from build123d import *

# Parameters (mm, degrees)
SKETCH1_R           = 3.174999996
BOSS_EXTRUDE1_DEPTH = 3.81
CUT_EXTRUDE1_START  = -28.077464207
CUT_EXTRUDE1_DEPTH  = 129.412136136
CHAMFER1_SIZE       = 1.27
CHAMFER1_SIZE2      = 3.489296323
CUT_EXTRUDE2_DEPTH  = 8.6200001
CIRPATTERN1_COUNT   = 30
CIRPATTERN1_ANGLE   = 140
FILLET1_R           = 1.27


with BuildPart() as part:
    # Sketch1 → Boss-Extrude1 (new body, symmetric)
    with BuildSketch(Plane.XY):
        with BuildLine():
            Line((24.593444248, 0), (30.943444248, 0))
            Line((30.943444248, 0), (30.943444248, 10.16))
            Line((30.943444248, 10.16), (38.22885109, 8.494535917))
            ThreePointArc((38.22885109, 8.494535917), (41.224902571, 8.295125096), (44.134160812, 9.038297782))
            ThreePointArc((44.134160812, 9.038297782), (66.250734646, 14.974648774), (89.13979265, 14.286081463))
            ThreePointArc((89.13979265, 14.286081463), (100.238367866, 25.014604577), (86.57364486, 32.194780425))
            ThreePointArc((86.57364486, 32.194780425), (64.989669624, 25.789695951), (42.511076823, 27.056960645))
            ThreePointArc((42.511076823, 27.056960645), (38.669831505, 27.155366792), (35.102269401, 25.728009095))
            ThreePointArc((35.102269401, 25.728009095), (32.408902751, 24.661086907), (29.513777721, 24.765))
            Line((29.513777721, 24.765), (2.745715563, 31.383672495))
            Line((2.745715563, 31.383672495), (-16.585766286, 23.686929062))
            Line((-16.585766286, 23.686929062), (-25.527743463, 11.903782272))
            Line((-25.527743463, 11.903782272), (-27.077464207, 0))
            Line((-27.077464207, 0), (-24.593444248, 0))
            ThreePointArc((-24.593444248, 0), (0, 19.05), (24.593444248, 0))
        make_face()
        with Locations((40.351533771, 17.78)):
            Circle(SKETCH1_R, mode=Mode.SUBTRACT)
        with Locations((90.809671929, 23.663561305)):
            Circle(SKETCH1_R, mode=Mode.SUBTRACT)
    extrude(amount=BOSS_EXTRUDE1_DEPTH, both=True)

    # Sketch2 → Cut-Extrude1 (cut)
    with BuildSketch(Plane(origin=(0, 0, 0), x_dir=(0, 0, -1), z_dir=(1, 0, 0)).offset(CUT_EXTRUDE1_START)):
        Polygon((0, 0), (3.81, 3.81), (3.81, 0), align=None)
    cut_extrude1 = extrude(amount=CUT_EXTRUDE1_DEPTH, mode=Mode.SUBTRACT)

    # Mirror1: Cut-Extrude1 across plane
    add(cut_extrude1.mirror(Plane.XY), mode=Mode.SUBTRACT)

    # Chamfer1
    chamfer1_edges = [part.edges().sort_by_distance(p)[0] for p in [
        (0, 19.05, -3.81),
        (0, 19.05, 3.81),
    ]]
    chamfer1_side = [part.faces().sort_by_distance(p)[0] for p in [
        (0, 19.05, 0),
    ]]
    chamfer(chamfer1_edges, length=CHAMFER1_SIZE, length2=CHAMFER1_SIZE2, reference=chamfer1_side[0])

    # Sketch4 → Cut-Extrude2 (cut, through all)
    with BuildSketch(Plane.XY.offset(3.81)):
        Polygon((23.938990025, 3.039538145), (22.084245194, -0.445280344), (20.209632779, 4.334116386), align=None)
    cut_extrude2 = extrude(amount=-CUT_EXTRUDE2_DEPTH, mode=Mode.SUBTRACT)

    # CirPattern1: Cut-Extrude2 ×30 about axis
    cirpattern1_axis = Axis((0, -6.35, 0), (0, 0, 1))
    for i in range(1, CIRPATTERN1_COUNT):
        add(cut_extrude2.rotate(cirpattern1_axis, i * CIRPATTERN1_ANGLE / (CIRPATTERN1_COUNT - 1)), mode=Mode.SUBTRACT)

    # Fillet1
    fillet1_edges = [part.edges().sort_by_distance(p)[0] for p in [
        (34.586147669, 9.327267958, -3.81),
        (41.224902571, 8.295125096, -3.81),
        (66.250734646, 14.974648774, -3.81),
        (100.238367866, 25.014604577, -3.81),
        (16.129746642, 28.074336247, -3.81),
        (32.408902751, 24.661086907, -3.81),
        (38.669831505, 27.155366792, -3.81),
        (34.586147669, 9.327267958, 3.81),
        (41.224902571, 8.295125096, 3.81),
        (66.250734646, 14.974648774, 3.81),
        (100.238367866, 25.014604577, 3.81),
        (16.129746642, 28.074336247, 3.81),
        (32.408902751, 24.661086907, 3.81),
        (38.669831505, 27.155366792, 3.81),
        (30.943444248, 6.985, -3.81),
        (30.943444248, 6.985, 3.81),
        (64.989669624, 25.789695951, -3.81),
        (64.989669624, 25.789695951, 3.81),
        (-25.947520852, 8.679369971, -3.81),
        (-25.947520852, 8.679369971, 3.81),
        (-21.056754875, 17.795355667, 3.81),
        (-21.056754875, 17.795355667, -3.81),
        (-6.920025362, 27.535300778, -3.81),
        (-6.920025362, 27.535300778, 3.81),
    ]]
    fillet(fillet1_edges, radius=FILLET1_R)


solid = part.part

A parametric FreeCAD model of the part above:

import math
import FreeCAD as App
import Part
import Sketcher
from FreeCAD import Vector
Q = App.Units.Quantity


def edges_at(feature, points):
    """Names of the edges that pass closest to the given points."""
    edges = feature.Shape.Edges
    near = lambda p: min(range(len(edges)), key=lambda i: edges[i].distToShape(Part.Vertex(*p))[0])
    return sorted({f"Edge{near(p) + 1}" for p in points})

doc = App.newDocument("Part")
body = doc.addObject("PartDesign::Body", "Body")

# Sketch on XY plane
sketch1 = body.newObject("Sketcher::SketchObject", "Sketch")
sketch1.AttachmentSupport = (doc.getObject("XY_Plane"), [""])
sketch1.MapMode = "FlatFace"
sketch1.addGeometry(Part.LineSegment(Vector(24.6, 0, 0), Vector(30.9, 0, 0)), False)
sketch1.addGeometry(Part.LineSegment(Vector(30.9, 0, 0), Vector(30.9, 10.2, 0)), False)
sketch1.addGeometry(Part.LineSegment(Vector(30.9, 10.2, 0), Vector(38.2, 8.5, 0)), False)
sketch1.addGeometry(Part.ArcOfCircle(Part.Circle(Vector(40.4, 17.8, 0), Vector(0, 0, 1), 9.5), math.radians(-103), math.radians(-67)), False)
sketch1.addGeometry(Part.ArcOfCircle(Part.Circle(Vector(75.4, -63.1, 0), Vector(0, 0, 1), 78.6), math.radians(80), math.radians(113)), False)
sketch1.addGeometry(Part.ArcOfCircle(Part.Circle(Vector(90.8, 23.7, 0), Vector(0, 0, 1), 9.5), math.radians(-100), math.radians(116)), False)
sketch1.addGeometry(Part.ArcOfCircle(Part.Circle(Vector(57.4, 91, 0), Vector(0, 0, 1), 65.6), math.radians(-103), math.radians(-64)), False)
sketch1.addGeometry(Part.ArcOfCircle(Part.Circle(Vector(40.4, 17.8, 0), Vector(0, 0, 1), 9.5), math.radians(77), math.radians(123)), False)
sketch1.addGeometry(Part.ArcOfCircle(Part.Circle(Vector(31.2, 31.6, 0), Vector(0, 0, 1), 7.1), math.radians(-104), math.radians(-57)), False)
sketch1.addGeometry(Part.LineSegment(Vector(29.5, 24.8, 0), Vector(2.7, 31.4, 0)), False)
sketch1.addGeometry(Part.LineSegment(Vector(2.7, 31.4, 0), Vector(-16.6, 23.7, 0)), False)
sketch1.addGeometry(Part.LineSegment(Vector(-16.6, 23.7, 0), Vector(-25.5, 11.9, 0)), False)
sketch1.addGeometry(Part.LineSegment(Vector(-25.5, 11.9, 0), Vector(-27.1, 0, 0)), False)
sketch1.addGeometry(Part.LineSegment(Vector(-27.1, 0, 0), Vector(-24.6, 0, 0)), False)
sketch1.addGeometry(Part.ArcOfCircle(Part.Circle(Vector(0, -6.3, 0), Vector(0, 0, 1), 25.4), math.radians(14), math.radians(166)), False)
sketch1.addGeometry(Part.Circle(Vector(40.4, 17.8, 0), Vector(0, 0, 1), 3.2), False)
sketch1.addGeometry(Part.Circle(Vector(90.8, 23.7, 0), Vector(0, 0, 1), 3.2), False)
sketch1.addConstraint(Sketcher.Constraint("Coincident", 0, 2, 1, 1))
sketch1.addConstraint(Sketcher.Constraint("Coincident", 1, 2, 2, 1))
sketch1.addConstraint(Sketcher.Constraint("Tangent", 2, 2, 3, 1))
sketch1.addConstraint(Sketcher.Constraint("Tangent", 3, 2, 4, 2))
sketch1.addConstraint(Sketcher.Constraint("Tangent", 4, 1, 5, 1))
sketch1.addConstraint(Sketcher.Constraint("Tangent", 5, 2, 6, 2))
sketch1.addConstraint(Sketcher.Constraint("Tangent", 6, 1, 7, 1))
sketch1.addConstraint(Sketcher.Constraint("Tangent", 7, 2, 8, 2))
sketch1.addConstraint(Sketcher.Constraint("Tangent", 8, 1, 9, 1))
sketch1.addConstraint(Sketcher.Constraint("Coincident", 9, 2, 10, 1))
sketch1.addConstraint(Sketcher.Constraint("Coincident", 10, 2, 11, 1))
sketch1.addConstraint(Sketcher.Constraint("Coincident", 11, 2, 12, 1))
sketch1.addConstraint(Sketcher.Constraint("Coincident", 12, 2, 13, 1))
sketch1.addConstraint(Sketcher.Constraint("Coincident", 13, 2, 14, 2))
sketch1.addConstraint(Sketcher.Constraint("Coincident", 14, 1, 0, 1))
sketch1.addConstraint(Sketcher.Constraint("Horizontal", 0))
sketch1.addConstraint(Sketcher.Constraint("Vertical", 1))
sketch1.addConstraint(Sketcher.Constraint("Horizontal", 13))
sketch1.addConstraint(Sketcher.Constraint("Coincident", 7, 3, 3, 3))
sketch1.addConstraint(Sketcher.Constraint("Coincident", 15, 3, 3, 3))
sketch1.addConstraint(Sketcher.Constraint("Coincident", 16, 3, 5, 3))
sketch1.addConstraint(Sketcher.Constraint("Equal", 3, 5))
sketch1.addConstraint(Sketcher.Constraint("Equal", 5, 7))
sketch1.addConstraint(Sketcher.Constraint("Equal", 15, 16))
sketch1.addConstraint(Sketcher.Constraint("Symmetric", 13, 2, 14, 1, -1, 1))
sketch1.addConstraint(Sketcher.Constraint("PointOnObject", 14, 3, -2))
sketch1.addConstraint(Sketcher.Constraint("Radius", 14, Q("1 in")))
sketch1.addConstraint(Sketcher.Constraint("Diameter", 15, Q("0.25 in")))
sketch1.addConstraint(Sketcher.Constraint("DistanceY", 1, 1, 1, 2, Q("0.4 in")))
sketch1.addConstraint(Sketcher.Constraint("Radius", 3, Q("0.375 in")))
sketch1.addConstraint(Sketcher.Constraint("DistanceX", 0, 1, 0, 2, Q("0.25 in")))
sketch1.addConstraint(Sketcher.Constraint("DistanceY", -1, 1, 3, 3, Q("0.7 in")))
sketch1.addConstraint(Sketcher.Constraint("DistanceY", 14, 3, -1, 1, Q("0.25 in")))
sketch1.addConstraint(Sketcher.Constraint("DistanceY", -1, 1, 8, 1, Q("0.975 in")))
sketch1.addConstraint(Sketcher.Constraint("Radius", 8, Q("7.063889 mm")))
sketch1.addConstraint(Sketcher.Constraint("Radius", 4, Q("78.620476 mm")))
sketch1.addConstraint(Sketcher.Constraint("Radius", 6, Q("65.622916 mm")))
sketch1.addConstraint(Sketcher.Constraint("DistanceX", 13, 1, 13, 2, Q("2.48402 mm")))
sketch1.addConstraint(Sketcher.Constraint("DistanceY", -1, 1, 6, 3, Q("90.970998 mm")))
sketch1.addConstraint(Sketcher.Constraint("DistanceX", 8, 3, 7, 3, Q("9.142201 mm")))
sketch1.addConstraint(Sketcher.Constraint("DistanceY", 4, 1, 5, 2, Q("17.908699 mm")))
sketch1.addConstraint(Sketcher.Constraint("DistanceX", 10, 2, 8, 3, Q("47.795099 mm")))
sketch1.addConstraint(Sketcher.Constraint("DistanceX", 11, 2, 13, 2, Q("0.934299 mm")))
sketch1.addConstraint(Sketcher.Constraint("Distance", 9, Q("27.57419 mm")))
sketch1.addConstraint(Sketcher.Constraint("Distance", 11, Q("14.791941 mm")))
sketch1.addConstraint(Sketcher.Constraint("DistanceX", -1, 1, 4, 3, Q("75.356412 mm")))
sketch1.addConstraint(Sketcher.Constraint("DistanceY", -1, 1, 10, 2, Q("23.686929 mm")))
pad1 = body.newObject("PartDesign::Pad", "Pad")
pad1.Profile = sketch1
pad1.Length = Q("0.3 in")
pad1.Midplane = True

# Sketch on YZ plane
sketch2 = body.newObject("Sketcher::SketchObject", "Sketch001")
sketch2.AttachmentSupport = (doc.getObject("YZ_Plane"), [""])
sketch2.MapMode = "FlatFace"
sketch2.AttachmentOffset = App.Placement(Vector(0, 0, -28.077464), App.Rotation())
sketch2.addGeometry(Part.LineSegment(Vector(3.8, -3.8, 0), Vector(0, 0, 0)), False)
sketch2.addGeometry(Part.LineSegment(Vector(0, 0, 0), Vector(0, -3.8, 0)), False)
sketch2.addGeometry(Part.LineSegment(Vector(0, -3.8, 0), Vector(3.8, -3.8, 0)), False)
sketch2.addConstraint(Sketcher.Constraint("Coincident", 0, 2, 1, 1))
sketch2.addConstraint(Sketcher.Constraint("Coincident", 1, 2, 2, 1))
sketch2.addConstraint(Sketcher.Constraint("Coincident", 2, 2, 0, 1))
sketch2.addConstraint(Sketcher.Constraint("Vertical", 1))
sketch2.addConstraint(Sketcher.Constraint("Horizontal", 2))
sketch2.addConstraint(Sketcher.Constraint("Coincident", 0, 2, -1, 1))
sketch2.addConstraint(Sketcher.Constraint("Equal", 2, 1))
sketch2.addConstraint(Sketcher.Constraint("DistanceX", 2, 1, 2, 2, Q("0.15 in")))
pocket1 = body.newObject("PartDesign::Pocket", "Pocket")
pocket1.Profile = sketch2
pocket1.Length = 129.412136
pocket1.Reversed = True
doc.recompute()

mirrored = body.newObject("PartDesign::Mirrored", "Mirrored")
mirrored.Originals = [pocket1]
mirrored.MirrorPlane = (doc.getObject("XY_Plane"), [""])
body.Tip = mirrored
doc.recompute()

chamfer = body.newObject("PartDesign::Chamfer", "Chamfer")
chamfer.Base = (mirrored, edges_at(mirrored, [(0, 19.05, -3.81), (0, 19.05, 3.81)]))
chamfer.ChamferType = "Two distances"
chamfer.Size = Q("0.05 in")
chamfer.Size2 = 3.489296

# Sketch on XY plane
sketch3 = body.newObject("Sketcher::SketchObject", "Sketch002")
sketch3.AttachmentSupport = (doc.getObject("XY_Plane"), [""])
sketch3.MapMode = "FlatFace"
sketch3.AttachmentOffset = App.Placement(Vector(0, 0, 0.15 * 25.4), App.Rotation())
sketch3.addGeometry(Part.LineSegment(Vector(22.1, -0.4, 0), Vector(23.9, 3, 0)), False)
sketch3.addGeometry(Part.LineSegment(Vector(23.9, 3, 0), Vector(20.2, 4.3, 0)), False)
sketch3.addGeometry(Part.LineSegment(Vector(20.2, 4.3, 0), Vector(22.1, -0.4, 0)), False)
sketch3.addConstraint(Sketcher.Constraint("Coincident", 0, 2, 1, 1))
sketch3.addConstraint(Sketcher.Constraint("Coincident", 1, 2, 2, 1))
sketch3.addConstraint(Sketcher.Constraint("Coincident", 2, 2, 0, 1))
sketch3.addConstraint(Sketcher.Constraint("Equal", 0, 1))
sketch3.addConstraint(Sketcher.Constraint("DistanceX", -1, 1, 0, 2, Q("23.93899 mm")))
sketch3.addConstraint(Sketcher.Constraint("DistanceY", -1, 1, 0, 2, Q("3.039538 mm")))
sketch3.addConstraint(Sketcher.Constraint("DistanceY", 2, 2, -1, 1, Q("0.44528 mm")))
sketch3.addConstraint(Sketcher.Constraint("DistanceY", 0, 2, 1, 2, Q("1.294578 mm")))
sketch3.addConstraint(Sketcher.Constraint("Distance", 0, Q("3.947662 mm")))
pocket2 = body.newObject("PartDesign::Pocket", "Pocket001")
pocket2.Profile = sketch3
pocket2.Type = "ThroughAll"
doc.recompute()

datumline = body.newObject("PartDesign::Line", "DatumLine")
datumline.Placement = App.Placement(Vector(0, -6.35, 0), App.Rotation(Vector(0, 0, 1), Vector(0, 0, 1)))
polarpattern = body.newObject("PartDesign::PolarPattern", "PolarPattern")
polarpattern.Originals = [pocket2]
polarpattern.Axis = (datumline, [""])
polarpattern.Angle = 140
polarpattern.Occurrences = 30
body.Tip = polarpattern
doc.recompute()

fillet = body.newObject("PartDesign::Fillet", "Fillet")
fillet.Base = (polarpattern, edges_at(polarpattern, [
    (34.586, 9.327, -3.81),
    (41.225, 8.295, -3.81),
    (66.251, 14.975, -3.81),
    (100.238, 25.015, -3.81),
    (16.13, 28.074, -3.81),
    (32.409, 24.661, -3.81),
    (38.67, 27.155, -3.81),
    (34.586, 9.327, 3.81),
    (41.225, 8.295, 3.81),
    (66.251, 14.975, 3.81),
    (100.238, 25.015, 3.81),
    (16.13, 28.074, 3.81),
    (32.409, 24.661, 3.81),
    (38.67, 27.155, 3.81),
    (30.943, 6.985, -3.81),
    (30.943, 6.985, 3.81),
    (64.99, 25.79, -3.81),
    (64.99, 25.79, 3.81),
    (-25.948, 8.679, -3.81),
    (-25.948, 8.679, 3.81),
    (-21.057, 17.795, 3.81),
    (-21.057, 17.795, -3.81),
    (-6.92, 27.535, -3.81),
    (-6.92, 27.535, 3.81),
]))
fillet.Radius = Q("0.05 in")

doc.recompute()
